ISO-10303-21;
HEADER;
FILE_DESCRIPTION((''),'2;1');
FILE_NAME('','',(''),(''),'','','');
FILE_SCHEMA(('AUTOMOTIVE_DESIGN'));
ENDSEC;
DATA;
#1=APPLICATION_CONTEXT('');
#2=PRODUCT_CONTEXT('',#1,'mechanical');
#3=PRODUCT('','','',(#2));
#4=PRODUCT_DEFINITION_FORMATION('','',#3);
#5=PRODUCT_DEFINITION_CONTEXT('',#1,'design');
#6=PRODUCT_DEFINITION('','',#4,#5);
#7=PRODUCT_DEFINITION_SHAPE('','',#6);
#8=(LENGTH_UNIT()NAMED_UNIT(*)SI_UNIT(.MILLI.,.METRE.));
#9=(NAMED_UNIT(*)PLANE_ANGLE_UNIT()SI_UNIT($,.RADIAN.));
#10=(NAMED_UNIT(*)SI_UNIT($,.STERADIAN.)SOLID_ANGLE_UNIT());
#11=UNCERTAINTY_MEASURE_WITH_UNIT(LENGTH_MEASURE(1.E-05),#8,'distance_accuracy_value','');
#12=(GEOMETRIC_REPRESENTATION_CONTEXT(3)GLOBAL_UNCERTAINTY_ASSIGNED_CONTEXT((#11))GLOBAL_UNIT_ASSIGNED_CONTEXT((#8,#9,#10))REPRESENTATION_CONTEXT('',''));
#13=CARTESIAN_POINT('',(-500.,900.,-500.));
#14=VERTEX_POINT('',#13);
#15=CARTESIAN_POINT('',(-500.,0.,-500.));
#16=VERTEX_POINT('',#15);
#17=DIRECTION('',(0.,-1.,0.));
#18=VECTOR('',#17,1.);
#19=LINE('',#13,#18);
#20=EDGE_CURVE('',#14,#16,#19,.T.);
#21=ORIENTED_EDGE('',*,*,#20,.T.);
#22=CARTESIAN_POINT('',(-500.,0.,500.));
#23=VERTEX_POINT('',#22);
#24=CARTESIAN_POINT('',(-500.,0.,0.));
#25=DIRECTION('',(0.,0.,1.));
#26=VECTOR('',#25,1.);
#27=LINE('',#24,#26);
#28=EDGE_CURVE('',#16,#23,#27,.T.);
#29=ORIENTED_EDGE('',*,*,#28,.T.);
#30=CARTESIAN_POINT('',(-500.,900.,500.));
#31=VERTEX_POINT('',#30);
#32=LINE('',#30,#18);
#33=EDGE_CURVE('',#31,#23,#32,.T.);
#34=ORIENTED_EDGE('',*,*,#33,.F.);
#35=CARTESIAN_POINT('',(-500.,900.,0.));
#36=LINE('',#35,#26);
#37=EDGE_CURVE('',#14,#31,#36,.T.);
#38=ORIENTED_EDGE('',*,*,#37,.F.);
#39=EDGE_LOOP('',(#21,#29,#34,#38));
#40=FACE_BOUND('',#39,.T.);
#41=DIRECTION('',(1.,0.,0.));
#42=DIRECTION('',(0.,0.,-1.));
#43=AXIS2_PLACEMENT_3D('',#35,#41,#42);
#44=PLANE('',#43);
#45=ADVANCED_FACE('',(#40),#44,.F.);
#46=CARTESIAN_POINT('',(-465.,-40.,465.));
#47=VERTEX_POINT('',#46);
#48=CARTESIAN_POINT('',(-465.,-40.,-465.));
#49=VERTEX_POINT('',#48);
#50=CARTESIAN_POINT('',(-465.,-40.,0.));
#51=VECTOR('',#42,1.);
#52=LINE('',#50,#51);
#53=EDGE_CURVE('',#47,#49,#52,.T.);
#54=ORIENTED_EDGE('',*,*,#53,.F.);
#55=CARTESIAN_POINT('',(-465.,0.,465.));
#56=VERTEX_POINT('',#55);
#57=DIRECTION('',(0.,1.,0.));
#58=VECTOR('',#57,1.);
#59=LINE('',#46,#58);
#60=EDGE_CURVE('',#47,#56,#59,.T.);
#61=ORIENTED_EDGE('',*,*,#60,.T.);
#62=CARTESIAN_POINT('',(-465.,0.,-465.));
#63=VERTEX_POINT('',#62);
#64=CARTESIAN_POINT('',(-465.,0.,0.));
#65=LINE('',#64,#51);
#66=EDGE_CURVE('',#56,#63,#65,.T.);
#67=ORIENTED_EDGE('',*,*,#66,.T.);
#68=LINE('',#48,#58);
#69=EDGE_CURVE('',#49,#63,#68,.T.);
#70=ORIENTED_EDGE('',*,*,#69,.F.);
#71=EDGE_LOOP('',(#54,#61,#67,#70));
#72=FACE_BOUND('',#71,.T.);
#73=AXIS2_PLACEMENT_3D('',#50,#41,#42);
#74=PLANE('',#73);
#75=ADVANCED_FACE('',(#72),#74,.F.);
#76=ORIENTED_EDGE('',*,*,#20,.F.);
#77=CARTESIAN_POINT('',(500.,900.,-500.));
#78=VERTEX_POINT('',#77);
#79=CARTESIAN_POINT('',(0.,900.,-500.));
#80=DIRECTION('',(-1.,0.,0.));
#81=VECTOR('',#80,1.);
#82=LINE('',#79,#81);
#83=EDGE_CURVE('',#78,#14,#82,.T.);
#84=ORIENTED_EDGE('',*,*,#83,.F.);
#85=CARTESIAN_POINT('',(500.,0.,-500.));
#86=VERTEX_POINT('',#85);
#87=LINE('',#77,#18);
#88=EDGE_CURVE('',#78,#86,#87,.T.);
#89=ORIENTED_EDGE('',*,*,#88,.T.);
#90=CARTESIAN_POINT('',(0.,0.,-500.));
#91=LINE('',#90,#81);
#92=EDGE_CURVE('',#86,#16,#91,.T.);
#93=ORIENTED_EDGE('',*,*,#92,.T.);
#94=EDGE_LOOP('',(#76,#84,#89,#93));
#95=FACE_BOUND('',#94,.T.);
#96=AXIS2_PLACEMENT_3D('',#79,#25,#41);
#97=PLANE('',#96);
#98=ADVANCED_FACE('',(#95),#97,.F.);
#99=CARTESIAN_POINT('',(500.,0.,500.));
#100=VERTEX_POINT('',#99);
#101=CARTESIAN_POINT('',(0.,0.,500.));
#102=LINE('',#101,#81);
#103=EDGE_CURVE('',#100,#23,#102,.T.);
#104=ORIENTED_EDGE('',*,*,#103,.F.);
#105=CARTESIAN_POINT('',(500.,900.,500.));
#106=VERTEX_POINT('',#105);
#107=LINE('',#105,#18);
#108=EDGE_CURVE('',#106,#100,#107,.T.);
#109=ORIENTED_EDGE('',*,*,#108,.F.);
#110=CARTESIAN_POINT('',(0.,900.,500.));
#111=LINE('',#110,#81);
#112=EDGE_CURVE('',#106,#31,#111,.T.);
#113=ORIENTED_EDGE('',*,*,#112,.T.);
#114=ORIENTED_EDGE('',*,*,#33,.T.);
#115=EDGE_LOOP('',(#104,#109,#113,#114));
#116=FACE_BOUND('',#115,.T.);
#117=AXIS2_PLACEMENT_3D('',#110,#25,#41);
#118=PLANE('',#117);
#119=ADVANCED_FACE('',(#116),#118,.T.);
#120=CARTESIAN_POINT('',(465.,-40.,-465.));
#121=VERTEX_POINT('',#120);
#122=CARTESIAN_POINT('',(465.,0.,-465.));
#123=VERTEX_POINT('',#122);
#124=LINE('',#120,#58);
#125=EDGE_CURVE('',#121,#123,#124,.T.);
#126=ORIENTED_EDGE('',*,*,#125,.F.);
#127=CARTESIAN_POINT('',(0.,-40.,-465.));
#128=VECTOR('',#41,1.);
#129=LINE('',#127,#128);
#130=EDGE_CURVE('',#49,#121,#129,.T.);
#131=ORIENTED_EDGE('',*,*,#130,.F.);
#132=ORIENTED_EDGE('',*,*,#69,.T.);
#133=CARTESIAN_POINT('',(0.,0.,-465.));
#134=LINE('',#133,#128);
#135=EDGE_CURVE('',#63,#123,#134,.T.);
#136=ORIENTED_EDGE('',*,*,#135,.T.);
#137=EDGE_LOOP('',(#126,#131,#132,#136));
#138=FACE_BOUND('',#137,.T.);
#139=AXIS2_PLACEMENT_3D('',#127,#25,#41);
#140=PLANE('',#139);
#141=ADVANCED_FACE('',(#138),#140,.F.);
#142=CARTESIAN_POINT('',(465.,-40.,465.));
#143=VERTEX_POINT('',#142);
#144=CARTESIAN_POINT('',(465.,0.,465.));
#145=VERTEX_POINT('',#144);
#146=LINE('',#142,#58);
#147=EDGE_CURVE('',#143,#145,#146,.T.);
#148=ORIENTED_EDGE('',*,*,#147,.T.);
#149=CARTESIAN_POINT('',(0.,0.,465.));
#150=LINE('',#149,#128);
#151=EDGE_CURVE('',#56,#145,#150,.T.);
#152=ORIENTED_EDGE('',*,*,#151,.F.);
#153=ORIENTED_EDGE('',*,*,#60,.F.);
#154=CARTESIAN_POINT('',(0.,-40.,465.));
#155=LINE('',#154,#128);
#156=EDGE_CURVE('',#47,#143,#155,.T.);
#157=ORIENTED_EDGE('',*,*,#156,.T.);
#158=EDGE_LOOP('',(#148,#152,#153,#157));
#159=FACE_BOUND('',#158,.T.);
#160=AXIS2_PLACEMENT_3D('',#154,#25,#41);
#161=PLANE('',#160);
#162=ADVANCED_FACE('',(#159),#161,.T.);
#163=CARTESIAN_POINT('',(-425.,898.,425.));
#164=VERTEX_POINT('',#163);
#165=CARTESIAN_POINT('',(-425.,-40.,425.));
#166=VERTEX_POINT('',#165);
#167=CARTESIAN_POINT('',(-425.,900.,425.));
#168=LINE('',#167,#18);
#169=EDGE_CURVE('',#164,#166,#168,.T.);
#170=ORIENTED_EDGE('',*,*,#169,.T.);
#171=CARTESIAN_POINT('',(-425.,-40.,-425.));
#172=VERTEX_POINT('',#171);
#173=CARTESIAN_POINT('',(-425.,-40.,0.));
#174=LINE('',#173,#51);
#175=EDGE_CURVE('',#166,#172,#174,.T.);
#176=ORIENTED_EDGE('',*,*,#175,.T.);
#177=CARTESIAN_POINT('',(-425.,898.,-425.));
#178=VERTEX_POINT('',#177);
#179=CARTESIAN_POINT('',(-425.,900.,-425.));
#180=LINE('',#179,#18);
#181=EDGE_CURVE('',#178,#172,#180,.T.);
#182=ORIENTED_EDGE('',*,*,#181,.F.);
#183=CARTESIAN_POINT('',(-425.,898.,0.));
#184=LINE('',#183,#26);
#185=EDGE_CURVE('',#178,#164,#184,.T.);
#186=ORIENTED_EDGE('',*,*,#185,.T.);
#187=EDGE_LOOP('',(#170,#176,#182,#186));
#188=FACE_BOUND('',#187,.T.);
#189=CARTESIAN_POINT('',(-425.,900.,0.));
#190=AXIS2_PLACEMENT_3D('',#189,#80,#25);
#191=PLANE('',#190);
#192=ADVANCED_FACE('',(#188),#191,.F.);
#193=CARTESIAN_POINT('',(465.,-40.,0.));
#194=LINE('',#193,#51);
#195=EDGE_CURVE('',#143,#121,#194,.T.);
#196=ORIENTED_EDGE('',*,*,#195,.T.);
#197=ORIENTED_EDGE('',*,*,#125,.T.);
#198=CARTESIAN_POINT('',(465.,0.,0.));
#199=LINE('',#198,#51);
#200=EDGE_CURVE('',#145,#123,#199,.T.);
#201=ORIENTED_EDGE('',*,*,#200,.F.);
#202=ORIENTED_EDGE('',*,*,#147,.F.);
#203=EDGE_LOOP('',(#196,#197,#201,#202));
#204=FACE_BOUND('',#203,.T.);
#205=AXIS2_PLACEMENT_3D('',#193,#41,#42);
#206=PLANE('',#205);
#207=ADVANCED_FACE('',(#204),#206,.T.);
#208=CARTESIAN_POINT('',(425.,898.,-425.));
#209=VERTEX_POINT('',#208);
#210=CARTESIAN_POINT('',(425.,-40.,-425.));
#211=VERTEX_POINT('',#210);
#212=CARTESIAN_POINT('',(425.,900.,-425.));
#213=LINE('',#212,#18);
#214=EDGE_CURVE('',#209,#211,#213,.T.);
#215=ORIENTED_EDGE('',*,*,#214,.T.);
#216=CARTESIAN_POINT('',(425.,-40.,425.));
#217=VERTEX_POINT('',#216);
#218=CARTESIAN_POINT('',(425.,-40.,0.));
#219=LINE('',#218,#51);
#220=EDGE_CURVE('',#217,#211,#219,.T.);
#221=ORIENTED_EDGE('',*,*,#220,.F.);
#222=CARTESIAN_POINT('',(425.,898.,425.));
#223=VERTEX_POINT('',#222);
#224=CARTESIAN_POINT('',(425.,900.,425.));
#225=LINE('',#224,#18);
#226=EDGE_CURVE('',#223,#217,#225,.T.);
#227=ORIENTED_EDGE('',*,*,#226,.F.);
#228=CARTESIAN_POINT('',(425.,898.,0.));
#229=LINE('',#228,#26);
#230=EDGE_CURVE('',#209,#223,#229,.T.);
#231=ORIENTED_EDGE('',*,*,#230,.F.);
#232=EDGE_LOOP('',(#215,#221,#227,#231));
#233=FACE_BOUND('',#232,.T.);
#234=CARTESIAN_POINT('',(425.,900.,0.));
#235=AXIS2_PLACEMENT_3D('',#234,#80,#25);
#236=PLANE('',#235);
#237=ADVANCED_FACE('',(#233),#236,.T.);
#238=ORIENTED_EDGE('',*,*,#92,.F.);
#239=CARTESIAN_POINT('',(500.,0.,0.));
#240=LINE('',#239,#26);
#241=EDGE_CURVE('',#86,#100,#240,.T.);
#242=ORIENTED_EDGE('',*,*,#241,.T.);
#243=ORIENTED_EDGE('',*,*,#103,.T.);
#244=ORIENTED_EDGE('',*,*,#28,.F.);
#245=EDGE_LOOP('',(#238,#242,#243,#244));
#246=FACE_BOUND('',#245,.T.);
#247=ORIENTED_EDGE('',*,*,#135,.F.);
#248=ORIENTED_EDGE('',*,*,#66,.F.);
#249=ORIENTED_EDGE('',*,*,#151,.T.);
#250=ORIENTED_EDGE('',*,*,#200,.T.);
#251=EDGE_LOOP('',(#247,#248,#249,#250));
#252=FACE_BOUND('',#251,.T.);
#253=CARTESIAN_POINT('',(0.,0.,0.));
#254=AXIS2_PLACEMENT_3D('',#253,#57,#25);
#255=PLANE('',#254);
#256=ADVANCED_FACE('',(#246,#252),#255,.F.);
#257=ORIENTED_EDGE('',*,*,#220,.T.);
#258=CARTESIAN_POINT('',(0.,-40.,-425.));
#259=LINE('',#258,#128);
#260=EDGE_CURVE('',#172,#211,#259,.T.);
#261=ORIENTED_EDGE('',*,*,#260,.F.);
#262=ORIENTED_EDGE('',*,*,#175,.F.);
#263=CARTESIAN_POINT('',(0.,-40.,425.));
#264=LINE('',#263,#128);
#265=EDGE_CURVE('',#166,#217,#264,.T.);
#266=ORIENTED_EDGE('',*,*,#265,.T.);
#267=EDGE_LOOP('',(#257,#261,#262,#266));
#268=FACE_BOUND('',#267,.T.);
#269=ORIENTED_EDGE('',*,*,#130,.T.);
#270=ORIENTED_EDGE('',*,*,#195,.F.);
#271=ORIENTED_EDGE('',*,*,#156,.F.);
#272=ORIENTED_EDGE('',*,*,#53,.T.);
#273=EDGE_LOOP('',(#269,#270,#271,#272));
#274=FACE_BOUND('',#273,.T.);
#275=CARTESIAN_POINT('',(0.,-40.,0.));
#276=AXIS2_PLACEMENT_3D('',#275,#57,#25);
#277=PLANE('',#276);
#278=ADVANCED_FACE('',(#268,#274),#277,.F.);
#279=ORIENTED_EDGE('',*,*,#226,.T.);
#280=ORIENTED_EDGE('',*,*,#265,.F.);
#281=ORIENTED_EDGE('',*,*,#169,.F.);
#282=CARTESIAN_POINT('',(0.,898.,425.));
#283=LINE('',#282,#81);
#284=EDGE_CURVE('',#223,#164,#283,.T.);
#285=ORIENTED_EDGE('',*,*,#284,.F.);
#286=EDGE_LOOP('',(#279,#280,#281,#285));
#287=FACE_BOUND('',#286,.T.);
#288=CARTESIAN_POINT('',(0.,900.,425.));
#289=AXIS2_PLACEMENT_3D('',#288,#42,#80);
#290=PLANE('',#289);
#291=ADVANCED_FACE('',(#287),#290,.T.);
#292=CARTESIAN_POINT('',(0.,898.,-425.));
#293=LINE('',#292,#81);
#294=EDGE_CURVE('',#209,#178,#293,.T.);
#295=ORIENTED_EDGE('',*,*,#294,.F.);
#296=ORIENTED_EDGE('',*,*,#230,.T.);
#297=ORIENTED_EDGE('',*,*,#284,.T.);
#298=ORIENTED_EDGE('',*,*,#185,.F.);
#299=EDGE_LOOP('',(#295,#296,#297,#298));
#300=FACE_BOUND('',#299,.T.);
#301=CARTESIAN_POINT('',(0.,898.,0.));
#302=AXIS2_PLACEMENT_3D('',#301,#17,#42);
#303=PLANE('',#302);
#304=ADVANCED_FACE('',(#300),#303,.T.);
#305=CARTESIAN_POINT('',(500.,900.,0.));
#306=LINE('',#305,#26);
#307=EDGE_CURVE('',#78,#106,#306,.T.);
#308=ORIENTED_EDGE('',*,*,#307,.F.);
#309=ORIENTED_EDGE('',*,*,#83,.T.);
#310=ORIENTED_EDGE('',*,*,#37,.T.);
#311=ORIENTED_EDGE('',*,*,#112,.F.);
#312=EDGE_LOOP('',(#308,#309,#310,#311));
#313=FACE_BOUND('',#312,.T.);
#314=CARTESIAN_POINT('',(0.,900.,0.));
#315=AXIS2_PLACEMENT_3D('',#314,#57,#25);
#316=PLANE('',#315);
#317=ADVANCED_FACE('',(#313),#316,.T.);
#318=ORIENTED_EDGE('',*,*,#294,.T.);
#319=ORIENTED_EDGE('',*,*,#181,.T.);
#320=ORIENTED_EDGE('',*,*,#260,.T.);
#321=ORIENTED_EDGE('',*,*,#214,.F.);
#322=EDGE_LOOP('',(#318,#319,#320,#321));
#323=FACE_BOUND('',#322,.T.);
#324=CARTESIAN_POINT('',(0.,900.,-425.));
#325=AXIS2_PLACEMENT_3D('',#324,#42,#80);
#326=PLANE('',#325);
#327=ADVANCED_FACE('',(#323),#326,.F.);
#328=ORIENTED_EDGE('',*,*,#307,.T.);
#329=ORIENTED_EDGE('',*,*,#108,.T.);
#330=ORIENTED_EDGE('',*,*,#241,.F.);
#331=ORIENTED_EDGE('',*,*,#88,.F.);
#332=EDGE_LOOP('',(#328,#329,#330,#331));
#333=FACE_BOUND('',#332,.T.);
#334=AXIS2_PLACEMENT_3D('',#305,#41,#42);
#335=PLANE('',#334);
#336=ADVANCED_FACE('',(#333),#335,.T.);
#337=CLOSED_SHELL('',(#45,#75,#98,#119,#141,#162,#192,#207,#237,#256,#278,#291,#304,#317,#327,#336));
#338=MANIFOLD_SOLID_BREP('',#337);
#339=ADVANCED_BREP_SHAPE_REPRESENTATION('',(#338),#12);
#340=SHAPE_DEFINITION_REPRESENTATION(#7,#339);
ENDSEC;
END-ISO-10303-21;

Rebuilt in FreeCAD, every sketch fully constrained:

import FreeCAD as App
import Part
import Sketcher

V = App.Vector
Q = App.Units.Quantity

doc = App.newDocument("Part")
body = doc.addObject("PartDesign::Body", "Body")

sketch1 = doc.addObject("Sketcher::SketchObject", "Sketch")
body.addObject(sketch1)
sketch1.AttachmentSupport = (doc.XZ_Plane, [""])
sketch1.MapMode = "FlatFace"
sketch1.addGeometry([
    Part.LineSegment(V(-500, -500, 0), V(-500, 500, 0)),
    Part.LineSegment(V(-500, 500, 0), V(500, 500, 0)),
    Part.LineSegment(V(500, 500, 0), V(500, -500, 0)),
    Part.LineSegment(V(500, -500, 0), V(-500, -500, 0)),
    Part.LineSegment(V(425, 425, 0), V(-425, 425, 0)),
    Part.LineSegment(V(-425, 425, 0), V(-425, -425, 0)),
    Part.LineSegment(V(-425, -425, 0), V(425, -425, 0)),
    Part.LineSegment(V(425, -425, 0), V(425, 425, 0)),
], False)
sketch1.addConstraint([
    Sketcher.Constraint("Coincident", 0, 2, 1, 1),
    Sketcher.Constraint("Coincident", 1, 2, 2, 1),
    Sketcher.Constraint("Coincident", 2, 2, 3, 1),
    Sketcher.Constraint("Coincident", 3, 2, 0, 1),
    Sketcher.Constraint("Coincident", 4, 2, 5, 1),
    Sketcher.Constraint("Coincident", 5, 2, 6, 1),
    Sketcher.Constraint("Coincident", 6, 2, 7, 1),
    Sketcher.Constraint("Coincident", 7, 2, 4, 1),
    Sketcher.Constraint("Vertical", 0),
    Sketcher.Constraint("Horizontal", 1),
    Sketcher.Constraint("Vertical", 2),
    Sketcher.Constraint("Horizontal", 3),
    Sketcher.Constraint("Horizontal", 4),
    Sketcher.Constraint("Vertical", 5),
    Sketcher.Constraint("Horizontal", 6),
    Sketcher.Constraint("Vertical", 7),
    Sketcher.Constraint("Symmetric", 0, 2, 2, 2, -1, 1),
    Sketcher.Constraint("Symmetric", 4, 2, 6, 2, -1, 1),
    Sketcher.Constraint("Equal", 3, 0),
    Sketcher.Constraint("Equal", 6, 5),
    Sketcher.Constraint("DistanceX", 1, 1, 1, 2, Q("1000 mm")),
    Sketcher.Constraint("DistanceX", 4, 2, 4, 1, Q("850 mm")),
])
pad1 = doc.addObject("PartDesign::Pad", "Pad")
body.addObject(pad1)
pad1.Profile = sketch1
pad1.Length = 900
pad1.Reversed = True

sketch2 = doc.addObject("Sketcher::SketchObject", "Sketch001")
body.addObject(sketch2)
sketch2.AttachmentSupport = (doc.XZ_Plane, [""])
sketch2.MapMode = "FlatFace"
sketch2.addGeometry([
    Part.LineSegment(V(-465, -465, 0), V(-465, 465, 0)),
    Part.LineSegment(V(-465, 465, 0), V(465, 465, 0)),
    Part.LineSegment(V(465, 465, 0), V(465, -465, 0)),
    Part.LineSegment(V(465, -465, 0), V(-465, -465, 0)),
    Part.LineSegment(V(425, 425, 0), V(-425, 425, 0)),
    Part.LineSegment(V(-425, 425, 0), V(-425, -425, 0)),
    Part.LineSegment(V(-425, -425, 0), V(425, -425, 0)),
    Part.LineSegment(V(425, -425, 0), V(425, 425, 0)),
], False)
sketch2.addConstraint([
    Sketcher.Constraint("Coincident", 0, 2, 1, 1),
    Sketcher.Constraint("Coincident", 1, 2, 2, 1),
    Sketcher.Constraint("Coincident", 2, 2, 3, 1),
    Sketcher.Constraint("Coincident", 3, 2, 0, 1),
    Sketcher.Constraint("Coincident", 4, 2, 5, 1),
    Sketcher.Constraint("Coincident", 5, 2, 6, 1),
    Sketcher.Constraint("Coincident", 6, 2, 7, 1),
    Sketcher.Constraint("Coincident", 7, 2, 4, 1),
    Sketcher.Constraint("Vertical", 0),
    Sketcher.Constraint("Horizontal", 1),
    Sketcher.Constraint("Vertical", 2),
    Sketcher.Constraint("Horizontal", 3),
    Sketcher.Constraint("Horizontal", 4),
    Sketcher.Constraint("Vertical", 5),
    Sketcher.Constraint("Horizontal", 6),
    Sketcher.Constraint("Vertical", 7),
    Sketcher.Constraint("Symmetric", 0, 2, 2, 2, -1, 1),
    Sketcher.Constraint("Symmetric", 4, 2, 6, 2, -1, 1),
    Sketcher.Constraint("Equal", 3, 0),
    Sketcher.Constraint("Equal", 6, 5),
    Sketcher.Constraint("DistanceX", 1, 1, 1, 2, Q("930 mm")),
    Sketcher.Constraint("DistanceX", 4, 2, 4, 1, Q("850 mm")),
])
pad2 = doc.addObject("PartDesign::Pad", "Pad001")
body.addObject(pad2)
pad2.Profile = sketch2
pad2.Length = 40

sketch3 = doc.addObject("Sketcher::SketchObject", "Sketch002")
body.addObject(sketch3)
sketch3.AttachmentSupport = (doc.XZ_Plane, [""])
sketch3.MapMode = "FlatFace"
sketch3.AttachmentOffset = App.Placement(V(0, 0, -900), App.Rotation())
sketch3.addGeometry([
    Part.LineSegment(V(-425, -425, 0), V(-425, 425, 0)),
    Part.LineSegment(V(-425, 425, 0), V(425, 425, 0)),
    Part.LineSegment(V(425, 425, 0), V(425, -425, 0)),
    Part.LineSegment(V(425, -425, 0), V(-425, -425, 0)),
], False)
sketch3.addConstraint([
    Sketcher.Constraint("Coincident", 0, 2, 1, 1),
    Sketcher.Constraint("Coincident", 1, 2, 2, 1),
    Sketcher.Constraint("Coincident", 2, 2, 3, 1),
    Sketcher.Constraint("Coincident", 3, 2, 0, 1),
    Sketcher.Constraint("Vertical", 0),
    Sketcher.Constraint("Horizontal", 1),
    Sketcher.Constraint("Vertical", 2),
    Sketcher.Constraint("Horizontal", 3),
    Sketcher.Constraint("Symmetric", 0, 2, 2, 2, -1, 1),
    Sketcher.Constraint("Equal", 3, 0),
    Sketcher.Constraint("DistanceX", 1, 1, 1, 2, Q("850 mm")),
])
pad3 = doc.addObject("PartDesign::Pad", "Pad002")
body.addObject(pad3)
pad3.Profile = sketch3
pad3.Length = 2

doc.recompute()
